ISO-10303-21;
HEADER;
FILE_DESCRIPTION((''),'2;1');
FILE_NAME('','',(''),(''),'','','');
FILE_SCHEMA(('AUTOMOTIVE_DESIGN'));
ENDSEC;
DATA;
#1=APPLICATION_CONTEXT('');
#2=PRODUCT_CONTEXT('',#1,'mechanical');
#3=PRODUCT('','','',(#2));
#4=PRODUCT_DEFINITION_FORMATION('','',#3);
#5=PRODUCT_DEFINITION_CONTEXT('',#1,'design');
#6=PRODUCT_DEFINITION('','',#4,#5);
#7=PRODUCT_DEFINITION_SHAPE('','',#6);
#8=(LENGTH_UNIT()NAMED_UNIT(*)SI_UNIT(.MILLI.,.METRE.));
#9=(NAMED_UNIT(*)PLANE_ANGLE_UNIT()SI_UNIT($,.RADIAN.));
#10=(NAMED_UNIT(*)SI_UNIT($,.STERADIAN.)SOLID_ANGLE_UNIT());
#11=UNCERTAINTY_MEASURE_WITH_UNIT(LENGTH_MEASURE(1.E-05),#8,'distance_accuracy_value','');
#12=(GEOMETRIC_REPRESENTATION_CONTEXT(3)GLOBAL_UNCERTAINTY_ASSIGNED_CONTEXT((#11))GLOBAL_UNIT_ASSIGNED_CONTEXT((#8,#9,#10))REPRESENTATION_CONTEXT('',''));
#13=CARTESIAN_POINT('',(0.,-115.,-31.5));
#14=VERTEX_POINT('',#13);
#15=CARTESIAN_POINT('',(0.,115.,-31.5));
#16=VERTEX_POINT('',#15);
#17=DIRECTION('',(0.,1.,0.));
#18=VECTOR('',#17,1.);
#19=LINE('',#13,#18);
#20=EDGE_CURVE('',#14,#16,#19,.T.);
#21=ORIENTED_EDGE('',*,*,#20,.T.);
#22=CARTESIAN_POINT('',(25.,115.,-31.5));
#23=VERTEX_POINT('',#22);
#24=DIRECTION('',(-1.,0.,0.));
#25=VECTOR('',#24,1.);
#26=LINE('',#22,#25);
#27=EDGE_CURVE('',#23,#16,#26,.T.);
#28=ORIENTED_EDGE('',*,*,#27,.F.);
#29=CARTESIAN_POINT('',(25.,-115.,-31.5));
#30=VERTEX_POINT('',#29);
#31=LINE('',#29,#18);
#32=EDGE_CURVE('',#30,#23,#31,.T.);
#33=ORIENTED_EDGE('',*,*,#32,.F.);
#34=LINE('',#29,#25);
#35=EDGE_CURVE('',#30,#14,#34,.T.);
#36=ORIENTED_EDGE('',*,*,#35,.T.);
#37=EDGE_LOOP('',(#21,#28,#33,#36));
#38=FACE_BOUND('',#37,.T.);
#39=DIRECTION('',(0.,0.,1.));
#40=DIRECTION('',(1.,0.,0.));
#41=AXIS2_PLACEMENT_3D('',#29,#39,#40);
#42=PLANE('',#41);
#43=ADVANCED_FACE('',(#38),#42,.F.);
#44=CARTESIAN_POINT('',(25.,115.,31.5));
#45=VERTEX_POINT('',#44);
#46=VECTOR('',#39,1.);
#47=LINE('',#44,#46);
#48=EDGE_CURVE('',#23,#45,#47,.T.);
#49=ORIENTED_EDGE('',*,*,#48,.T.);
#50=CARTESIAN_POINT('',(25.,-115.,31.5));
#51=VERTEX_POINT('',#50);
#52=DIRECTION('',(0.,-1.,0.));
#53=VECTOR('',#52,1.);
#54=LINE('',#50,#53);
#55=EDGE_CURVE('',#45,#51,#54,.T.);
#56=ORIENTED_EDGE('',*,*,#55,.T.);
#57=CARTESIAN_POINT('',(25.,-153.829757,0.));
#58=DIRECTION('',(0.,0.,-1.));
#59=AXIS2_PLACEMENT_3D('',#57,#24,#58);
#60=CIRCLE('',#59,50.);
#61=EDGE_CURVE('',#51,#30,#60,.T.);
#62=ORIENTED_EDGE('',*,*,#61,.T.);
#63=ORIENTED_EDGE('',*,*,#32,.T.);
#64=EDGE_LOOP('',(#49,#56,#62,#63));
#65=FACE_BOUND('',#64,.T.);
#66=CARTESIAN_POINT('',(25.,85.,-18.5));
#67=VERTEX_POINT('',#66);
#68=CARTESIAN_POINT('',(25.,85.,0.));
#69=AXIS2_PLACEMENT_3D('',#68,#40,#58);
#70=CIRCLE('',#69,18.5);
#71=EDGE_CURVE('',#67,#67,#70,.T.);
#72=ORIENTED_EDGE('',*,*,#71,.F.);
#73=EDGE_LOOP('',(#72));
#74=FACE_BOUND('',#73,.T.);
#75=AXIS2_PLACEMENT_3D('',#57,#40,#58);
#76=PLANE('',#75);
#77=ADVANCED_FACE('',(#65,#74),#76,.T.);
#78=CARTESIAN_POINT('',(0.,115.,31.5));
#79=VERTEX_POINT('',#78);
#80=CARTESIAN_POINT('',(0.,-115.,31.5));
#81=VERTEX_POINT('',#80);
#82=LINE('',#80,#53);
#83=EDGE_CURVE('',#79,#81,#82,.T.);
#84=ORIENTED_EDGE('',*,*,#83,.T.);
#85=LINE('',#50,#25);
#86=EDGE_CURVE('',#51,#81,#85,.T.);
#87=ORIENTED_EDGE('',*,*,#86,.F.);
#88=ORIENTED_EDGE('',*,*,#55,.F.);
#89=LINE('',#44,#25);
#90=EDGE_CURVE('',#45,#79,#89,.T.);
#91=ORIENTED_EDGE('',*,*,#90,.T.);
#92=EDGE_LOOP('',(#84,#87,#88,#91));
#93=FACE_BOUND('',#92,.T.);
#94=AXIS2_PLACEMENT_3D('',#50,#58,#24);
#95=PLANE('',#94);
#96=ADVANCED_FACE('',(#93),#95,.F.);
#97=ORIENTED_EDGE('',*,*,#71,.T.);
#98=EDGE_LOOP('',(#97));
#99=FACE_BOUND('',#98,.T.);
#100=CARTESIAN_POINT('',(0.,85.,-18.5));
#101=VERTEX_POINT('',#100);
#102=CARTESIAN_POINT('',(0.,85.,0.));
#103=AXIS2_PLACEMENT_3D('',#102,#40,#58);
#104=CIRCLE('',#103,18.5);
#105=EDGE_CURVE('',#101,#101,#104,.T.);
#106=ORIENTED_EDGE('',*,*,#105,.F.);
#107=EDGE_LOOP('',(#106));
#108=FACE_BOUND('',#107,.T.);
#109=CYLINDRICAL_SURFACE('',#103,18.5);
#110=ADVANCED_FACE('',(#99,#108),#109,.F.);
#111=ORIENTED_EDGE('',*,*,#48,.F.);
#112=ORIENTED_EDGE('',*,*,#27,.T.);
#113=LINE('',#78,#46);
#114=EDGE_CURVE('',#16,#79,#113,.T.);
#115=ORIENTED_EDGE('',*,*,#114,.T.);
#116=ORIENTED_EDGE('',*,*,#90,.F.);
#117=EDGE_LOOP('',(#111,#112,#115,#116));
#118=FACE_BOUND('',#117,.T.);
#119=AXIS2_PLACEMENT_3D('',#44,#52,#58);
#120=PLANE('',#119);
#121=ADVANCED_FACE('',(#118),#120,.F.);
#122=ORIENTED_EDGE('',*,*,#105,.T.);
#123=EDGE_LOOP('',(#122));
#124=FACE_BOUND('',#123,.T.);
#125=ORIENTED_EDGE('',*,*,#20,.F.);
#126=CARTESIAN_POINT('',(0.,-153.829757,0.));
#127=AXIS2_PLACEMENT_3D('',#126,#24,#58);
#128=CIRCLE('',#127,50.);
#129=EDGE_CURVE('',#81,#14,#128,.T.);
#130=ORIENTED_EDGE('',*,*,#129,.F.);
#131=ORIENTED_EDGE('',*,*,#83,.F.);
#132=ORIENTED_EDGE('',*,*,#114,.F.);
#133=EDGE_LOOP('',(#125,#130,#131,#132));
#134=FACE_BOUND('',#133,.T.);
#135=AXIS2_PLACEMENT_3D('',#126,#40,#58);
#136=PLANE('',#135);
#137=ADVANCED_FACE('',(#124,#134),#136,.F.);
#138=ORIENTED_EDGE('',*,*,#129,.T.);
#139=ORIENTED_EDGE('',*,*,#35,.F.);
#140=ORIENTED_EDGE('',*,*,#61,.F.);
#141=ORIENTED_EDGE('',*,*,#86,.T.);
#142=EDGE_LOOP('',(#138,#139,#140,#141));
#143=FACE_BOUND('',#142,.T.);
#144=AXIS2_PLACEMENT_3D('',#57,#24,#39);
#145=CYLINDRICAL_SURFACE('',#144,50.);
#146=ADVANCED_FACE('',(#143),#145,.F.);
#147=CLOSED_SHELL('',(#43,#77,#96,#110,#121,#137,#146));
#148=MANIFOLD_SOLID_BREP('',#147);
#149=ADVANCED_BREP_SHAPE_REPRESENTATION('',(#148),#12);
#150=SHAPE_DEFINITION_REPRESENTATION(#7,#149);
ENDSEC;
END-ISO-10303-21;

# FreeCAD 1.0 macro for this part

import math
import FreeCAD as App
import Part
import Sketcher
from FreeCAD import Vector

doc = App.newDocument("Part")
params = doc.addObject("Spreadsheet::Sheet", "Params")
for row, (alias, value) in enumerate([
    ("sketch1_radius", "50 mm"),
    ("sketch1_width", "230 mm"),
    ("sketch1_height", "63 mm"),
    ("pad1_length", "25 mm"),
    ("sketch2_diameter", "37 mm"),
], start=1):
    params.set(f"A{row}", alias)
    params.set(f"B{row}", "=" + value)
    params.setAlias(f"B{row}", alias)

body = doc.addObject("PartDesign::Body", "Body")

sketch1 = doc.addObject("Sketcher::SketchObject", "Sketch")
body.addObject(sketch1)
sketch1.AttachmentSupport = (doc.YZ_Plane, [""])
sketch1.MapMode = "FlatFace"
sketch1.addGeometry(Part.LineSegment(Vector(115, 32, 0), Vector(-115, 32, 0)), False)
sketch1.addGeometry(Part.ArcOfCircle(Part.Circle(Vector(-154, 0, 0), Vector(0, 0, 1), 50), math.radians(-39), math.radians(39)), False)
sketch1.addGeometry(Part.LineSegment(Vector(-115, -32, 0), Vector(115, -32, 0)), False)
sketch1.addGeometry(Part.LineSegment(Vector(115, -32, 0), Vector(115, 32, 0)), False)
sketch1.addConstraint(Sketcher.Constraint("Coincident", 0, 2, 1, 2))
sketch1.addConstraint(Sketcher.Constraint("Coincident", 1, 1, 2, 1))
sketch1.addConstraint(Sketcher.Constraint("Coincident", 2, 2, 3, 1))
sketch1.addConstraint(Sketcher.Constraint("Coincident", 3, 2, 0, 1))
sketch1.addConstraint(Sketcher.Constraint("Horizontal", 0))
sketch1.addConstraint(Sketcher.Constraint("Horizontal", 2))
sketch1.addConstraint(Sketcher.Constraint("Vertical", 3))
sketch1.addConstraint(Sketcher.Constraint("Symmetric", 0, 2, 2, 2, -1, 1))
sketch1.addConstraint(Sketcher.Constraint("PointOnObject", 1, 3, -1))
sketch1.addConstraint(Sketcher.Constraint("Radius", 1, 50.0))
sketch1.addConstraint(Sketcher.Constraint("DistanceX", 0, 2, 0, 1, 230.0))
sketch1.addConstraint(Sketcher.Constraint("DistanceY", 3, 1, 3, 2, 63.0))
sketch1.setExpression("Constraints[9]", "Params.sketch1_radius")
sketch1.setExpression("Constraints[10]", "Params.sketch1_width")
sketch1.setExpression("Constraints[11]", "Params.sketch1_height")
pad1 = doc.addObject("PartDesign::Pad", "Pad")
body.addObject(pad1)
pad1.Profile = sketch1
pad1.setExpression("Length", "Params.pad1_length")

sketch2 = doc.addObject("Sketcher::SketchObject", "Sketch001")
body.addObject(sketch2)
sketch2.AttachmentSupport = (doc.YZ_Plane, [""])
sketch2.MapMode = "FlatFace"
sketch2.AttachmentOffset = App.Placement(Vector(0, 0, 25), App.Rotation())
sketch2.addGeometry(Part.Circle(Vector(85, 0, 0), Vector(0, 0, 1), 18), False)
sketch2.addConstraint(Sketcher.Constraint("PointOnObject", 0, 3, -1))
sketch2.addConstraint(Sketcher.Constraint("Diameter", 0, 37.0))
sketch2.addConstraint(Sketcher.Constraint("DistanceX", -1, 1, 0, 3, 85.0))
sketch2.setExpression("Constraints[1]", "Params.sketch2_diameter")
pocket1 = doc.addObject("PartDesign::Pocket", "Pocket")
body.addObject(pocket1)
pocket1.Profile = sketch2
pocket1.Type = "ThroughAll"
pocket1.Midplane = True

doc.recompute()
